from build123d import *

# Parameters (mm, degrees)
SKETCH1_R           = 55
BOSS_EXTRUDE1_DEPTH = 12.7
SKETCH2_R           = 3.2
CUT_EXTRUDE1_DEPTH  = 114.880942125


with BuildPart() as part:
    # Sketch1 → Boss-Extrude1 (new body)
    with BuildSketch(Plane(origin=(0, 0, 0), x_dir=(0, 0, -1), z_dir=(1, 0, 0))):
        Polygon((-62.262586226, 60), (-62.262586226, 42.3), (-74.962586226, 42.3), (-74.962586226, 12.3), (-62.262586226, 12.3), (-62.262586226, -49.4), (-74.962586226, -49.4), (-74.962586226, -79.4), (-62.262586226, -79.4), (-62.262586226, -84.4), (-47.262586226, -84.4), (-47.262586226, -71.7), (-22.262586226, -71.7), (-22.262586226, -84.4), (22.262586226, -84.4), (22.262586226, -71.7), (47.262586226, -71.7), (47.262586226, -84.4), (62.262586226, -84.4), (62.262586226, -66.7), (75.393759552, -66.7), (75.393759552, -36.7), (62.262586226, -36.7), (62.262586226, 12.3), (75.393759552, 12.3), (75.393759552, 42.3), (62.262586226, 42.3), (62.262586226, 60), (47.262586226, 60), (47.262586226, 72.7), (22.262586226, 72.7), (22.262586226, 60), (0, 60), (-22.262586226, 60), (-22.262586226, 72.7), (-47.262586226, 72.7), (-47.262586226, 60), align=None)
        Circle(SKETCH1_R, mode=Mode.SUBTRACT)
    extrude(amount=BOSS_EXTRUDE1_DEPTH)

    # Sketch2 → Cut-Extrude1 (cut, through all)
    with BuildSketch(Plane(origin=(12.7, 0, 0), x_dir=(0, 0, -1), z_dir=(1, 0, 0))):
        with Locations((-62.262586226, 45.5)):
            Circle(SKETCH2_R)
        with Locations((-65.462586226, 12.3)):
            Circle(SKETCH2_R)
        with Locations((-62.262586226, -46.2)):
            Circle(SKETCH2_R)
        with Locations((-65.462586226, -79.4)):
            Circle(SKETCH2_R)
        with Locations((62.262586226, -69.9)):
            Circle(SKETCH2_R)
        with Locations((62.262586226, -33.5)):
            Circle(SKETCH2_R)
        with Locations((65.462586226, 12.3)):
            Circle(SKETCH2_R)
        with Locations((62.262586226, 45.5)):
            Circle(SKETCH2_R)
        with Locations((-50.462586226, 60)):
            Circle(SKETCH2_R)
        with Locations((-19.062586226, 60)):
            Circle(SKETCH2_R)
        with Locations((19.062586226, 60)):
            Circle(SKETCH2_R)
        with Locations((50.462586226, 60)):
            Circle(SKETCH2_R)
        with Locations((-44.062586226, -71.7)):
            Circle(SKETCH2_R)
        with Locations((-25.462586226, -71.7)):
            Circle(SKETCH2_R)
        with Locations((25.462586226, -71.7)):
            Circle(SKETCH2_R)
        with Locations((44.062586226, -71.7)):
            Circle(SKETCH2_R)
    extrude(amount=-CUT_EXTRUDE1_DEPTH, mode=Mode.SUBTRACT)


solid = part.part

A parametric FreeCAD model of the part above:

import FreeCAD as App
import Part
import Sketcher
from FreeCAD import Vector

doc = App.newDocument("Part")
body = doc.addObject("PartDesign::Body", "Body")

# Sketch on YZ plane
sketch1 = body.newObject("Sketcher::SketchObject", "Sketch")
sketch1.AttachmentSupport = (doc.getObject("YZ_Plane"), [""])
sketch1.MapMode = "FlatFace"
sketch1.addGeometry([
    Part.LineSegment(Vector(60, 62, 0), Vector(42, 62, 0)),  # 0
    Part.LineSegment(Vector(42, 62, 0), Vector(42, 75, 0)),  # 1
    Part.LineSegment(Vector(42, 75, 0), Vector(12, 75, 0)),  # 2
    Part.LineSegment(Vector(12, 75, 0), Vector(12, 62, 0)),  # 3
    Part.LineSegment(Vector(12, 62, 0), Vector(-49, 62, 0)),  # 4
    Part.LineSegment(Vector(-49, 62, 0), Vector(-49, 75, 0)),  # 5
    Part.LineSegment(Vector(-49, 75, 0), Vector(-79, 75, 0)),  # 6
    Part.LineSegment(Vector(-79, 75, 0), Vector(-79, 62, 0)),  # 7
    Part.LineSegment(Vector(-79, 62, 0), Vector(-84, 62, 0)),  # 8
    Part.LineSegment(Vector(-84, 62, 0), Vector(-84, 47, 0)),  # 9
    Part.LineSegment(Vector(-84, 47, 0), Vector(-72, 47, 0)),  # 10
    Part.LineSegment(Vector(-72, 47, 0), Vector(-72, 22, 0)),  # 11
    Part.LineSegment(Vector(-72, 22, 0), Vector(-84, 22, 0)),  # 12
    Part.LineSegment(Vector(-84, 22, 0), Vector(-84, -22, 0)),  # 13
    Part.LineSegment(Vector(-84, -22, 0), Vector(-72, -22, 0)),  # 14
    Part.LineSegment(Vector(-72, -22, 0), Vector(-72, -47, 0)),  # 15
    Part.LineSegment(Vector(-72, -47, 0), Vector(-84, -47, 0)),  # 16
    Part.LineSegment(Vector(-84, -47, 0), Vector(-84, -62, 0)),  # 17
    Part.LineSegment(Vector(-84, -62, 0), Vector(-67, -62, 0)),  # 18
    Part.LineSegment(Vector(-67, -62, 0), Vector(-67, -75, 0)),  # 19
    Part.LineSegment(Vector(-67, -75, 0), Vector(-37, -75, 0)),  # 20
    Part.LineSegment(Vector(-37, -75, 0), Vector(-37, -62, 0)),  # 21
    Part.LineSegment(Vector(-37, -62, 0), Vector(12, -62, 0)),  # 22
    Part.LineSegment(Vector(12, -62, 0), Vector(12, -75, 0)),  # 23
    Part.LineSegment(Vector(12, -75, 0), Vector(42, -75, 0)),  # 24
    Part.LineSegment(Vector(42, -75, 0), Vector(42, -62, 0)),  # 25
    Part.LineSegment(Vector(42, -62, 0), Vector(60, -62, 0)),  # 26
    Part.LineSegment(Vector(60, -62, 0), Vector(60, -47, 0)),  # 27
    Part.LineSegment(Vector(60, -47, 0), Vector(73, -47, 0)),  # 28
    Part.LineSegment(Vector(73, -47, 0), Vector(73, -22, 0)),  # 29
    Part.LineSegment(Vector(73, -22, 0), Vector(60, -22, 0)),  # 30
    Part.LineSegment(Vector(60, -22, 0), Vector(60, 22, 0)),  # 31
    Part.LineSegment(Vector(60, 22, 0), Vector(73, 22, 0)),  # 32
    Part.LineSegment(Vector(73, 22, 0), Vector(73, 47, 0)),  # 33
    Part.LineSegment(Vector(73, 47, 0), Vector(60, 47, 0)),  # 34
    Part.LineSegment(Vector(60, 47, 0), Vector(60, 62, 0)),  # 35
    Part.Circle(Vector(0, 0, 0), Vector(0, 0, 1), 55),  # 36
], False)
sketch1.addConstraint([
    Sketcher.Constraint("Coincident", 0, 2, 1, 1),
    Sketcher.Constraint("Coincident", 1, 2, 2, 1),
    Sketcher.Constraint("Coincident", 2, 2, 3, 1),
    Sketcher.Constraint("Coincident", 3, 2, 4, 1),
    Sketcher.Constraint("Coincident", 4, 2, 5, 1),
    Sketcher.Constraint("Coincident", 5, 2, 6, 1),
    Sketcher.Constraint("Coincident", 6, 2, 7, 1),
    Sketcher.Constraint("Coincident", 7, 2, 8, 1),
    Sketcher.Constraint("Coincident", 8, 2, 9, 1),
    Sketcher.Constraint("Coincident", 9, 2, 10, 1),
    Sketcher.Constraint("Coincident", 10, 2, 11, 1),
    Sketcher.Constraint("Coincident", 11, 2, 12, 1),
    Sketcher.Constraint("Coincident", 12, 2, 13, 1),
    Sketcher.Constraint("Coincident", 13, 2, 14, 1),
    Sketcher.Constraint("Coincident", 14, 2, 15, 1),
    Sketcher.Constraint("Coincident", 15, 2, 16, 1),
    Sketcher.Constraint("Coincident", 16, 2, 17, 1),
    Sketcher.Constraint("Coincident", 17, 2, 18, 1),
    Sketcher.Constraint("Coincident", 18, 2, 19, 1),
    Sketcher.Constraint("Coincident", 19, 2, 20, 1),
    Sketcher.Constraint("Coincident", 20, 2, 21, 1),
    Sketcher.Constraint("Coincident", 21, 2, 22, 1),
    Sketcher.Constraint("Coincident", 22, 2, 23, 1),
    Sketcher.Constraint("Coincident", 23, 2, 24, 1),
    Sketcher.Constraint("Coincident", 24, 2, 25, 1),
    Sketcher.Constraint("Coincident", 25, 2, 26, 1),
    Sketcher.Constraint("Coincident", 26, 2, 27, 1),
    Sketcher.Constraint("Coincident", 27, 2, 28, 1),
    Sketcher.Constraint("Coincident", 28, 2, 29, 1),
    Sketcher.Constraint("Coincident", 29, 2, 30, 1),
    Sketcher.Constraint("Coincident", 30, 2, 31, 1),
    Sketcher.Constraint("Coincident", 31, 2, 32, 1),
    Sketcher.Constraint("Coincident", 32, 2, 33, 1),
    Sketcher.Constraint("Coincident", 33, 2, 34, 1),
    Sketcher.Constraint("Coincident", 34, 2, 35, 1),
    Sketcher.Constraint("Coincident", 35, 2, 0, 1),
    Sketcher.Constraint("Horizontal", 0),
    Sketcher.Constraint("Vertical", 1),
    Sketcher.Constraint("Horizontal", 2),
    Sketcher.Constraint("Vertical", 3),
    Sketcher.Constraint("Horizontal", 4),
    Sketcher.Constraint("Vertical", 5),
    Sketcher.Constraint("Horizontal", 6),
    Sketcher.Constraint("Vertical", 7),
    Sketcher.Constraint("Horizontal", 8),
    Sketcher.Constraint("Vertical", 9),
    Sketcher.Constraint("Horizontal", 10),
    Sketcher.Constraint("Vertical", 11),
    Sketcher.Constraint("Horizontal", 12),
    Sketcher.Constraint("Vertical", 13),
    Sketcher.Constraint("Horizontal", 14),
    Sketcher.Constraint("Vertical", 15),
    Sketcher.Constraint("Horizontal", 16),
    Sketcher.Constraint("Vertical", 17),
    Sketcher.Constraint("Horizontal", 18),
    Sketcher.Constraint("Vertical", 19),
    Sketcher.Constraint("Horizontal", 20),
    Sketcher.Constraint("Vertical", 21),
    Sketcher.Constraint("Horizontal", 22),
    Sketcher.Constraint("Vertical", 23),
    Sketcher.Constraint("Horizontal", 24),
    Sketcher.Constraint("Vertical", 25),
    Sketcher.Constraint("Horizontal", 26),
    Sketcher.Constraint("Vertical", 27),
    Sketcher.Constraint("Horizontal", 28),
    Sketcher.Constraint("Vertical", 29),
    Sketcher.Constraint("Horizontal", 30),
    Sketcher.Constraint("Vertical", 31),
    Sketcher.Constraint("Horizontal", 32),
    Sketcher.Constraint("Vertical", 33),
    Sketcher.Constraint("Horizontal", 34),
    Sketcher.Constraint("Vertical", 35),
    Sketcher.Constraint("Coincident", 36, 3, -1, 1),
    Sketcher.Constraint("Symmetric", 11, 2, 14, 2, -1),
    Sketcher.Constraint("Symmetric", 9, 2, 16, 2, -1),
    Sketcher.Constraint("Symmetric", 3, 2, 22, 2, -1),
    Sketcher.Constraint("Symmetric", 0, 2, 25, 2, -1),
    Sketcher.Constraint("Symmetric", 29, 2, 32, 2, -1),
    Sketcher.Constraint("Symmetric", 27, 2, 34, 2, -1),
    Sketcher.Constraint("Horizontal", 0, 2, 3, 2),
    Sketcher.Constraint("Horizontal", 2, 2, 5, 2),
    Sketcher.Constraint("Horizontal", 4, 2, 7, 2),
    Sketcher.Constraint("Horizontal", 18, 2, 21, 2),
    Sketcher.Constraint("Horizontal", 20, 2, 23, 2),
    Sketcher.Constraint("Horizontal", 16, 2, 27, 2),
    Sketcher.Constraint("Horizontal", 14, 2, 29, 2),
    Sketcher.Constraint("Vertical", 9, 2, 12, 2),
    Sketcher.Constraint("Vertical", 27, 2, 30, 2),
    Sketcher.Constraint("Equal", 2, 6),
    Sketcher.Constraint("Equal", 0, 18),
    Sketcher.Constraint("Equal", 6, 20),
    Sketcher.Constraint("Equal", 16, 28),
    Sketcher.Constraint("Equal", 34, 1),
    Sketcher.Constraint("Diameter", 36, 110.0),
    Sketcher.Constraint("DistanceX", 2, 2, 2, 1, 30.0),
    Sketcher.Constraint("DistanceX", 8, 2, 8, 1, 5.0),
    Sketcher.Constraint("DistanceX", 22, 1, 22, 2, 49.0),
    Sketcher.Constraint("DistanceY", 9, 2, 9, 1, 15.0),
    Sketcher.Constraint("DistanceY", 11, 2, 11, 1, 25.0),
    Sketcher.Constraint("DistanceX", 0, 2, 0, 1, 17.7),
    Sketcher.Constraint("DistanceX", 10, 1, 10, 2, 12.7),
    Sketcher.Constraint("DistanceX", -1, 1, 26, 2, 60.0),
    Sketcher.Constraint("DistanceY", 13, 2, 13, 1, 44.525172),
    Sketcher.Constraint("DistanceY", 19, 2, 19, 1, 13.131173),
])
pad1 = body.newObject("PartDesign::Pad", "Pad")
pad1.Profile = sketch1
pad1.Length = 12.7

# Sketch on YZ plane
sketch2 = body.newObject("Sketcher::SketchObject", "Sketch001")
sketch2.AttachmentSupport = (doc.getObject("YZ_Plane"), [""])
sketch2.MapMode = "FlatFace"
sketch2.AttachmentOffset = App.Placement(Vector(0, 0, 12.7), App.Rotation())
sketch2.addGeometry([
    Part.Circle(Vector(45.5, 62.3, 0), Vector(0, 0, 1), 3.2),  # 0
    Part.Circle(Vector(12.3, 65.5, 0), Vector(0, 0, 1), 3.2),  # 1
    Part.Circle(Vector(-46.2, 62.3, 0), Vector(0, 0, 1), 3.2),  # 2
    Part.Circle(Vector(-79.4, 65.5, 0), Vector(0, 0, 1), 3.2),  # 3
    Part.Circle(Vector(-69.9, -62.3, 0), Vector(0, 0, 1), 3.2),  # 4
    Part.Circle(Vector(-33.5, -62.3, 0), Vector(0, 0, 1), 3.2),  # 5
    Part.Circle(Vector(12.3, -65.5, 0), Vector(0, 0, 1), 3.2),  # 6
    Part.Circle(Vector(45.5, -62.3, 0), Vector(0, 0, 1), 3.2),  # 7
    Part.Circle(Vector(60, 50.5, 0), Vector(0, 0, 1), 3.2),  # 8
    Part.Circle(Vector(60, 19.1, 0), Vector(0, 0, 1), 3.2),  # 9
    Part.Circle(Vector(60, -19.1, 0), Vector(0, 0, 1), 3.2),  # 10
    Part.Circle(Vector(60, -50.5, 0), Vector(0, 0, 1), 3.2),  # 11
    Part.Circle(Vector(-71.7, 44.1, 0), Vector(0, 0, 1), 3.2),  # 12
    Part.Circle(Vector(-71.7, 25.5, 0), Vector(0, 0, 1), 3.2),  # 13
    Part.Circle(Vector(-71.7, -25.5, 0), Vector(0, 0, 1), 3.2),  # 14
    Part.Circle(Vector(-71.7, -44.1, 0), Vector(0, 0, 1), 3.2),  # 15
], False)
sketch2.addConstraint([
    Sketcher.Constraint("Equal", 0, 1),
    Sketcher.Constraint("Equal", 1, 2),
    Sketcher.Constraint("Equal", 2, 3),
    Sketcher.Constraint("Equal", 3, 4),
    Sketcher.Constraint("Equal", 4, 5),
    Sketcher.Constraint("Equal", 5, 6),
    Sketcher.Constraint("Equal", 6, 7),
    Sketcher.Constraint("Equal", 7, 8),
    Sketcher.Constraint("Equal", 8, 9),
    Sketcher.Constraint("Equal", 9, 10),
    Sketcher.Constraint("Equal", 10, 11),
    Sketcher.Constraint("Equal", 11, 12),
    Sketcher.Constraint("Equal", 12, 13),
    Sketcher.Constraint("Equal", 13, 14),
    Sketcher.Constraint("Equal", 14, 15),
    Sketcher.Constraint("Symmetric", 1, 3, 6, 3, -1),
    Sketcher.Constraint("Symmetric", 0, 3, 7, 3, -1),
    Sketcher.Constraint("Symmetric", 9, 3, 10, 3, -1),
    Sketcher.Constraint("Symmetric", 8, 3, 11, 3, -1),
    Sketcher.Constraint("Symmetric", 13, 3, 14, 3, -1),
    Sketcher.Constraint("Symmetric", 12, 3, 15, 3, -1),
    Sketcher.Constraint("Horizontal", 0, 3, 2, 3),
    Sketcher.Constraint("Horizontal", 1, 3, 3, 3),
    Sketcher.Constraint("Horizontal", 4, 3, 5, 3),
    Sketcher.Constraint("Horizontal", 5, 3, 7, 3),
    Sketcher.Constraint("Vertical", 8, 3, 9, 3),
    Sketcher.Constraint("Vertical", 12, 3, 13, 3),
    Sketcher.Constraint("Diameter", 0, 6.4),
    Sketcher.Constraint("DistanceX", -1, 1, 8, 3, 60.0),
    Sketcher.Constraint("DistanceX", 5, 3, 0, 3, 79.0),
    Sketcher.Constraint("DistanceY", 8, 3, 1, 3, 15.0),
    Sketcher.Constraint("DistanceX", 12, 3, 1, 3, 84.0),
    Sketcher.Constraint("DistanceY", 13, 3, 3, 3, 40.0),
    Sketcher.Constraint("DistanceX", -1, 1, 0, 3, 45.5),
    Sketcher.Constraint("DistanceX", -1, 1, 1, 3, 12.3),
    Sketcher.Constraint("DistanceX", 2, 3, -1, 1, 46.2),
    Sketcher.Constraint("DistanceX", 3, 3, -1, 1, 79.4),
    Sketcher.Constraint("DistanceX", 4, 3, -1, 1, 69.9),
    Sketcher.Constraint("DistanceY", 0, 3, 1, 3, 3.2),
    Sketcher.Constraint("DistanceY", 9, 3, 8, 3, 31.4),
    Sketcher.Constraint("DistanceY", 12, 3, 3, 3, 21.4),
    Sketcher.Constraint("DistanceY", -1, 1, 0, 3, 62.262586),
])
pocket1 = body.newObject("PartDesign::Pocket", "Pocket")
pocket1.Profile = sketch2
pocket1.Type = "ThroughAll"

doc.recompute()
